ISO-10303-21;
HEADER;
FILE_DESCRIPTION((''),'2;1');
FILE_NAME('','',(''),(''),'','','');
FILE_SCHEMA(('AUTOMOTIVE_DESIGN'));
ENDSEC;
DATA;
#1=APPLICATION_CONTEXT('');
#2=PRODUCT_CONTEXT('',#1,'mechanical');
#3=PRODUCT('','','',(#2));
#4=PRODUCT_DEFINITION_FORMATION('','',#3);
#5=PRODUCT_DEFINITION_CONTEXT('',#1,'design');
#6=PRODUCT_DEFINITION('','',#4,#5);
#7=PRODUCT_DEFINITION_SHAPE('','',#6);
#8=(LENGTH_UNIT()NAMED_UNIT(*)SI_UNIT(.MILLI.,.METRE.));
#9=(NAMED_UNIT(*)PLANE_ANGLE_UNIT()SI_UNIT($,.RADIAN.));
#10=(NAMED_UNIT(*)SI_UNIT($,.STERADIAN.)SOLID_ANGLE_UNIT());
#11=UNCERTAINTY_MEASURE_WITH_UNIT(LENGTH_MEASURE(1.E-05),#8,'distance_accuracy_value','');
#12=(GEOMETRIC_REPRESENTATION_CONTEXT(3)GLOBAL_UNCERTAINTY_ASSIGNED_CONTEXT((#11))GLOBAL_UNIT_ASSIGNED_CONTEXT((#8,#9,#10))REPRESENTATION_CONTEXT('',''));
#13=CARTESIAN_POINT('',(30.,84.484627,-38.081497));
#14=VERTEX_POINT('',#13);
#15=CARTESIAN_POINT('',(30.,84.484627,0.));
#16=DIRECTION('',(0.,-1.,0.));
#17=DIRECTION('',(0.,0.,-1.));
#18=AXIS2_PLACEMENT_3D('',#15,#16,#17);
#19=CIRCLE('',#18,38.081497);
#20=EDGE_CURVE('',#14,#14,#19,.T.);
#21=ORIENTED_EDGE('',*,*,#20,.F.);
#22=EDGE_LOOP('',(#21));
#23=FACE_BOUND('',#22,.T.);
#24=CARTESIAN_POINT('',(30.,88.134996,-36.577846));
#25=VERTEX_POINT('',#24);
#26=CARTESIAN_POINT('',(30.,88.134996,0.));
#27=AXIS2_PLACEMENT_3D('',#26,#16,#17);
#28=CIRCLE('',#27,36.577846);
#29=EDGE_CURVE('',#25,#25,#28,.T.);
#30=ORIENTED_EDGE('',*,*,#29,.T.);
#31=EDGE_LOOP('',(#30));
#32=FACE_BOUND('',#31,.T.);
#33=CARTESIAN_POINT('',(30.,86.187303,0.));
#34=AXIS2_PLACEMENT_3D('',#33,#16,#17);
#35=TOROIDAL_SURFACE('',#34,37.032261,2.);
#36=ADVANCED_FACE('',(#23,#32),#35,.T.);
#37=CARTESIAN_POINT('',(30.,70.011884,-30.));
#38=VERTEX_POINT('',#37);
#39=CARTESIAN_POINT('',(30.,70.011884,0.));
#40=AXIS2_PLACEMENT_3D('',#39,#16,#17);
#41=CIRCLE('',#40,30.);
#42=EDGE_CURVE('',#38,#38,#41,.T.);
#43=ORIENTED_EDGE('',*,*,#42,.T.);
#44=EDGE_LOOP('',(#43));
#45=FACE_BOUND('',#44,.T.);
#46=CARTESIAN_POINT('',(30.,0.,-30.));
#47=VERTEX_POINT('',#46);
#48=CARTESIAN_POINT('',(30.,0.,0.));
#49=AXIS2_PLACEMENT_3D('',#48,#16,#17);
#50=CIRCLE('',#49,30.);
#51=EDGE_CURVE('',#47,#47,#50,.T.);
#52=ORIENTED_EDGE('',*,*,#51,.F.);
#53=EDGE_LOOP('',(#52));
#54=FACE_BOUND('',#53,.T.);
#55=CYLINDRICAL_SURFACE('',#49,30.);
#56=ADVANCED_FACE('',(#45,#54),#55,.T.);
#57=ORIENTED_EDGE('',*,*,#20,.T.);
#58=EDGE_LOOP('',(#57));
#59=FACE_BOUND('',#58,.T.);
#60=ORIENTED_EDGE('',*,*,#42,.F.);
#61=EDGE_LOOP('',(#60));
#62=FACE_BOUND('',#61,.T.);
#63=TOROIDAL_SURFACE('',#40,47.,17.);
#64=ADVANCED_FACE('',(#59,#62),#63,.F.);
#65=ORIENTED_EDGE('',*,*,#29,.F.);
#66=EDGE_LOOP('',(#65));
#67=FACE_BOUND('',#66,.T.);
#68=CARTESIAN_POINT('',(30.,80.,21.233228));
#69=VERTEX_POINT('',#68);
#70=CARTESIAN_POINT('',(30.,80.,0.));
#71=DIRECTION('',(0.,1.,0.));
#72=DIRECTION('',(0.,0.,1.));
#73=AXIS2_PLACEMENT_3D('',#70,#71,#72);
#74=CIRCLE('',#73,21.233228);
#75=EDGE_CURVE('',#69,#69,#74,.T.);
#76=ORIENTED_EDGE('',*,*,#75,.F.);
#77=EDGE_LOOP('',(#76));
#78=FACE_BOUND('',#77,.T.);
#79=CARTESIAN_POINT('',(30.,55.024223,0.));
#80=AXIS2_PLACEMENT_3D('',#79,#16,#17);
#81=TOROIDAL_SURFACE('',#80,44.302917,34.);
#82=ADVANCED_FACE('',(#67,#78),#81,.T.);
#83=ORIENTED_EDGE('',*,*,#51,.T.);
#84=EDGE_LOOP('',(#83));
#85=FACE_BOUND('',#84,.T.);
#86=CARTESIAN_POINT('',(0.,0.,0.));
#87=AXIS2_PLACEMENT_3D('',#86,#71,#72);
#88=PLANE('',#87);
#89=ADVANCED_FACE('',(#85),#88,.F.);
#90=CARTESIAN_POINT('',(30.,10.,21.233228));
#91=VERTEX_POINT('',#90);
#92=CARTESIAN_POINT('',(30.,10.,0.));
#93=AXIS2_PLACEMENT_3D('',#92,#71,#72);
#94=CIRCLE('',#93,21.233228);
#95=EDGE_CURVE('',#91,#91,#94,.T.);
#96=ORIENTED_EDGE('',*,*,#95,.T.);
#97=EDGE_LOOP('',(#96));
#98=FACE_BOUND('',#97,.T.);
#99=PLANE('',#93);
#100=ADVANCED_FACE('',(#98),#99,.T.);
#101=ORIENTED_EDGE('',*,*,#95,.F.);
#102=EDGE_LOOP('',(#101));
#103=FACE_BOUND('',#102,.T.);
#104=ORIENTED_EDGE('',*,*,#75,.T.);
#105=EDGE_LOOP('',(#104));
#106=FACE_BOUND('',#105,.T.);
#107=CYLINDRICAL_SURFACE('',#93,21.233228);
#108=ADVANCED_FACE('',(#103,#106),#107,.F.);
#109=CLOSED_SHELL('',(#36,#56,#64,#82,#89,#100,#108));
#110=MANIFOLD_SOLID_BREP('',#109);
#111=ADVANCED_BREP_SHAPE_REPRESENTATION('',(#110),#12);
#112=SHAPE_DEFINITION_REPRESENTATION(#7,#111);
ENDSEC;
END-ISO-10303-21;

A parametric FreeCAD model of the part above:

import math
import FreeCAD as App
import Part
import Sketcher

V = App.Vector

doc = App.newDocument("Part")
body = doc.addObject("PartDesign::Body", "Body")

sketch1 = doc.addObject("Sketcher::SketchObject", "Sketch")
body.addObject(sketch1)
sketch1.AttachmentSupport = (doc.XY_Plane, [""])
sketch1.MapMode = "FlatFace"
sketch1.addGeometry(Part.LineSegment(V(0, 0, 0), V(30, 0, 0)), False)
sketch1.addGeometry(Part.LineSegment(V(30, 0, 0), V(30, 80, 0)), False)
sketch1.addGeometry(Part.LineSegment(V(30, 80, 0), V(8.8, 80, 0)), False)
sketch1.addGeometry(Part.ArcOfCircle(Part.Circle(V(-14.3, 55, 0), V(0, 0, 1), 34), math.radians(47), math.radians(77)), False)
sketch1.addGeometry(Part.ArcOfCircle(Part.Circle(V(-7, 86.2, 0), V(0, 0, 1), 2), math.radians(77), math.radians(238)), False)
sketch1.addGeometry(Part.ArcOfCircle(Part.Circle(V(-17, 70, 0), V(0, 0, 1), 17), math.radians(0), math.radians(58)), False)
sketch1.addGeometry(Part.LineSegment(V(0, 70, 0), V(0, 0, 0)), False)
sketch1.addGeometry(Part.LineSegment(V(30, 0, 0), V(30, 88.1, 0)), True)
sketch1.addConstraint(Sketcher.Constraint("Coincident", 0, 2, 1, 1))
sketch1.addConstraint(Sketcher.Constraint("Coincident", 1, 2, 2, 1))
sketch1.addConstraint(Sketcher.Constraint("Coincident", 2, 2, 3, 1))
sketch1.addConstraint(Sketcher.Constraint("Tangent", 3, 2, 4, 1))
sketch1.addConstraint(Sketcher.Constraint("Tangent", 4, 2, 5, 2))
sketch1.addConstraint(Sketcher.Constraint("Tangent", 5, 1, 6, 1))
sketch1.addConstraint(Sketcher.Constraint("Coincident", 6, 2, 0, 1))
sketch1.addConstraint(Sketcher.Constraint("Horizontal", 0))
sketch1.addConstraint(Sketcher.Constraint("Vertical", 1))
sketch1.addConstraint(Sketcher.Constraint("Horizontal", 2))
sketch1.addConstraint(Sketcher.Constraint("Vertical", 6))
sketch1.addConstraint(Sketcher.Constraint("Vertical", 7))
sketch1.addConstraint(Sketcher.Constraint("Coincident", 6, 2, -1, 1))
sketch1.addConstraint(Sketcher.Constraint("Coincident", 7, 1, 0, 2))
sketch1.addConstraint(Sketcher.Constraint("Horizontal", 3, 2, 7, 2))
sketch1.addConstraint(Sketcher.Constraint("Radius", 3, 34.0))
sketch1.addConstraint(Sketcher.Constraint("Radius", 4, 2.0))
sketch1.addConstraint(Sketcher.Constraint("Radius", 5, 17.0))
sketch1.addConstraint(Sketcher.Constraint("DistanceX", 0, 1, 0, 2, 30.0))
sketch1.addConstraint(Sketcher.Constraint("DistanceY", 1, 1, 1, 2, 80.0))
sketch1.addConstraint(Sketcher.Constraint("DistanceX", 2, 2, 2, 1, 21.233228))
sketch1.addConstraint(Sketcher.Constraint("DistanceY", 6, 2, 6, 1, 70.011884))
sketch1.addConstraint(Sketcher.Constraint("DistanceY", 7, 1, 7, 2, 88.134996))
revolution = doc.addObject("PartDesign::Revolution", "Revolution")
body.addObject(revolution)
revolution.Profile = sketch1
revolution.ReferenceAxis = (sketch1, ["Axis0"])
revolution.Angle = 360

sketch2 = doc.addObject("Sketcher::SketchObject", "Sketch001")
body.addObject(sketch2)
sketch2.AttachmentSupport = (doc.XZ_Plane, [""])
sketch2.MapMode = "FlatFace"
sketch2.AttachmentOffset = App.Placement(V(0, 0, -80), App.Rotation())
sketch2.addGeometry(Part.Circle(V(30, 0, 0), V(0, 0, 1), 21), False)
sketch2.addConstraint(Sketcher.Constraint("PointOnObject", 0, 3, -1))
sketch2.addConstraint(Sketcher.Constraint("DistanceX", -1, 1, 0, 3, 30.0))
sketch2.addConstraint(Sketcher.Constraint("Diameter", 0, 42.466455))
pocket1 = doc.addObject("PartDesign::Pocket", "Pocket")
body.addObject(pocket1)
pocket1.Profile = sketch2
pocket1.Length = 70
pocket1.Reversed = True

doc.recompute()
